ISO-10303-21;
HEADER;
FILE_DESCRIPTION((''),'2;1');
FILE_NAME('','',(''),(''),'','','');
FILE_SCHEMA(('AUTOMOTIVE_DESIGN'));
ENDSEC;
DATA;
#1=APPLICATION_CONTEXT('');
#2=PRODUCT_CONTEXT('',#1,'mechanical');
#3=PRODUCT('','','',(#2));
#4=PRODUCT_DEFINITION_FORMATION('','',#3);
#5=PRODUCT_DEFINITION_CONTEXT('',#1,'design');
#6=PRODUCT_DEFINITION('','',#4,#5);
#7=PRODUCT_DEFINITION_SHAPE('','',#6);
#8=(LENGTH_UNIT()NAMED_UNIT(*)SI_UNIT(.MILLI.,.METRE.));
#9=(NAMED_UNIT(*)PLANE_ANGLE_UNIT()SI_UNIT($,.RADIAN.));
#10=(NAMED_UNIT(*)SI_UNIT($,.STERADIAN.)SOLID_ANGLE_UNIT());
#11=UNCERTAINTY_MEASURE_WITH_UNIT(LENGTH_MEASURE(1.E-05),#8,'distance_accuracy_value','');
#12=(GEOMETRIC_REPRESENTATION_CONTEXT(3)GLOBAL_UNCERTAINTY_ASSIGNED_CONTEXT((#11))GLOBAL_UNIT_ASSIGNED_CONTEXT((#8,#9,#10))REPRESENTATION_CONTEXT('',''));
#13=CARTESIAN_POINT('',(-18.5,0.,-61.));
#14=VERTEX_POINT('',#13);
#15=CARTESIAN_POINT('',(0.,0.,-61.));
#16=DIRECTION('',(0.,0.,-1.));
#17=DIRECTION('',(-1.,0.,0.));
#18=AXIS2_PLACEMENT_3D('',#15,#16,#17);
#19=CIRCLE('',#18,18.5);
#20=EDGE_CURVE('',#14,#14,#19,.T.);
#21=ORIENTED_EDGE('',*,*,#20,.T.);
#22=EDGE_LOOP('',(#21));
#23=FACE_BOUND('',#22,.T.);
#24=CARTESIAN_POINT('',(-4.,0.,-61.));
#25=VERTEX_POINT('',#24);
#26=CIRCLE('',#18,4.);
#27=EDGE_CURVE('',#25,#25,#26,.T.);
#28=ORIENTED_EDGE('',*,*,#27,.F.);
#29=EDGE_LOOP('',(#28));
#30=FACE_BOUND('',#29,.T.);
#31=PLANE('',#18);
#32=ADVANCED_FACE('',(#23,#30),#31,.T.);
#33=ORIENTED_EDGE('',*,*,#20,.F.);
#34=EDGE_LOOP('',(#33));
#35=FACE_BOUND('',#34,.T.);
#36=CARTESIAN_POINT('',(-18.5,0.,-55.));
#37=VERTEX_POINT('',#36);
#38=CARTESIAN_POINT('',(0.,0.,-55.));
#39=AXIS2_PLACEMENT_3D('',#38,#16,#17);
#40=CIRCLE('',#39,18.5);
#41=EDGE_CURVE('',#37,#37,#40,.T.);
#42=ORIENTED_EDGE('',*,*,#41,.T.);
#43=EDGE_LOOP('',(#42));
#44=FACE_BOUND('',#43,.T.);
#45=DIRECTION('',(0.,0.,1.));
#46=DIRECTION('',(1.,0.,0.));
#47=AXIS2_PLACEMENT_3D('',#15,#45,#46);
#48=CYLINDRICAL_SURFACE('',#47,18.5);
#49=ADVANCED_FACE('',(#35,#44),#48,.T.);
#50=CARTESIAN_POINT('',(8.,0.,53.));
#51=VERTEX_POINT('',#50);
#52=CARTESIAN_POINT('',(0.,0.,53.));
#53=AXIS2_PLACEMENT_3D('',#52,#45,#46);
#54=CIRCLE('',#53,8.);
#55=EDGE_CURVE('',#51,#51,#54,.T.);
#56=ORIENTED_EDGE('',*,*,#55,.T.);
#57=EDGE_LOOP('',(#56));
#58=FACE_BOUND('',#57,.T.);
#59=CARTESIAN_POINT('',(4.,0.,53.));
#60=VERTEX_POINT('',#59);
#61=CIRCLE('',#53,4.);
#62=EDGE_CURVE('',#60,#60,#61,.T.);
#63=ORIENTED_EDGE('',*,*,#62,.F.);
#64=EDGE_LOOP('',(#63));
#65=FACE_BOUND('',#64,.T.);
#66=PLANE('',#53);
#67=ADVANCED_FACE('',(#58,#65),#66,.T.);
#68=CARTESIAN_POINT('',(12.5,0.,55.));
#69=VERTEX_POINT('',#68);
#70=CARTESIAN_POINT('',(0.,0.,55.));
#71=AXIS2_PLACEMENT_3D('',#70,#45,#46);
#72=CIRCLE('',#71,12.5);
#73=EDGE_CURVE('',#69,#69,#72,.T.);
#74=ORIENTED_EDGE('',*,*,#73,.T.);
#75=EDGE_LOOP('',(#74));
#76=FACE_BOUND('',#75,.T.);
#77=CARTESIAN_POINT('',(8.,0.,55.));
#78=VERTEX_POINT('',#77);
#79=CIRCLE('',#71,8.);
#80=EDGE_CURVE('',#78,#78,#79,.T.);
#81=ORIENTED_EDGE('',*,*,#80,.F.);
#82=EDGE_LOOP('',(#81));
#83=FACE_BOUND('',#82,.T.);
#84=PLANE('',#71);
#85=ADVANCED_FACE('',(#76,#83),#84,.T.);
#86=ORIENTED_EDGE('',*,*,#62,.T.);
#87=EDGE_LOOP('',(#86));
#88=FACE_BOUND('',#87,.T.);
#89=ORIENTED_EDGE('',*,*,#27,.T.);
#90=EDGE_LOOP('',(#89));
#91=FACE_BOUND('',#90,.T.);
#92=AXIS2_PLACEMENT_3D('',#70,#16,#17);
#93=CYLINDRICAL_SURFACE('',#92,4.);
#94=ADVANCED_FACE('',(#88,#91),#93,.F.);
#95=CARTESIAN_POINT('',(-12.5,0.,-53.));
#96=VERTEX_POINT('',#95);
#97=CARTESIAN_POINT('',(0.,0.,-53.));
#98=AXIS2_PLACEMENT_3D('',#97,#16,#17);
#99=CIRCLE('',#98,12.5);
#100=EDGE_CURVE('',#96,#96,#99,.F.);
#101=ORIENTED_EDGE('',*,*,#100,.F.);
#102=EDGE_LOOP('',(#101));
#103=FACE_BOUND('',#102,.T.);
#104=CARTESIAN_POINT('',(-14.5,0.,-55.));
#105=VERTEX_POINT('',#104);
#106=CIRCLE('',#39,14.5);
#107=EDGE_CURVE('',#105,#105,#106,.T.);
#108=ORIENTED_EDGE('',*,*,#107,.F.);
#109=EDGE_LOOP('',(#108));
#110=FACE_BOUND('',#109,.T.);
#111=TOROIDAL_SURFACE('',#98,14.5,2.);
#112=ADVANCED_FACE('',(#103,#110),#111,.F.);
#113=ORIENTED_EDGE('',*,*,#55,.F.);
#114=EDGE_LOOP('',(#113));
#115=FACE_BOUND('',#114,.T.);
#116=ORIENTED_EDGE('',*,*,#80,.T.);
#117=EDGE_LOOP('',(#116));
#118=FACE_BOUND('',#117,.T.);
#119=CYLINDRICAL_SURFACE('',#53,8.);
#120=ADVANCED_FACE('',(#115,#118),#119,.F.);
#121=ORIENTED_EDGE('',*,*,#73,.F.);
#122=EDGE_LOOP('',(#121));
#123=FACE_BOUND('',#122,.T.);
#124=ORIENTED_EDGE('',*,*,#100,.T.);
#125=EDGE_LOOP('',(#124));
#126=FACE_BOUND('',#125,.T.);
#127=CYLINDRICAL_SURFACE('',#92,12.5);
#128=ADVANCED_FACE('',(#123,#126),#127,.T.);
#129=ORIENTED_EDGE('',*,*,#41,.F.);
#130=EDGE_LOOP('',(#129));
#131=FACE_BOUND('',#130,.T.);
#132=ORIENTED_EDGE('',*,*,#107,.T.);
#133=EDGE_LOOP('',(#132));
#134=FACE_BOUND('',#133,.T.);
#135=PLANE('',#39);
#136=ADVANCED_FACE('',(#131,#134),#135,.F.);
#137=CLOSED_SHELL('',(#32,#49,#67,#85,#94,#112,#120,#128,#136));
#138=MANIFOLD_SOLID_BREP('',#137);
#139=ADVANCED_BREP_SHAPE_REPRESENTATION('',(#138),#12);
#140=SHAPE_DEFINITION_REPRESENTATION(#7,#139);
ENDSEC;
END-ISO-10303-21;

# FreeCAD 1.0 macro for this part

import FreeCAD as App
import Part
import Sketcher


def edges_at(feature, points):
    """Names of the edges that pass closest to the given points."""
    edges = feature.Shape.Edges
    near = lambda p: min(range(len(edges)), key=lambda i: edges[i].distToShape(Part.Vertex(*p))[0])
    return sorted({f"Edge{near(p) + 1}" for p in points})

doc = App.newDocument("Part")
body = doc.addObject("PartDesign::Body", "Body")

# Sketch on XY plane
sketch1 = body.newObject("Sketcher::SketchObject", "Sketch")
sketch1.AttachmentSupport = (doc.getObject("XY_Plane"), [""])
sketch1.MapMode = "FlatFace"
sketch1.addGeometry([
    Part.Circle(App.Vector(0, 0, 0), App.Vector(0, 0, 1), 12.5),
    Part.Circle(App.Vector(0, 0, 0), App.Vector(0, 0, 1), 4),
], False)
sketch1.addConstraint([
    Sketcher.Constraint("Coincident", 0, 3, -1, 1),
    Sketcher.Constraint("Coincident", 1, 3, -1, 1),
    Sketcher.Constraint("Diameter", 0, 25.0),
    Sketcher.Constraint("Diameter", 1, 8.0),
])
pad1 = body.newObject("PartDesign::Pad", "Pad")
pad1.Profile = sketch1
pad1.Length = 110
pad1.Midplane = True

# Sketch on XY plane
sketch2 = body.newObject("Sketcher::SketchObject", "Sketch001")
sketch2.AttachmentSupport = (doc.getObject("XY_Plane"), [""])
sketch2.MapMode = "FlatFace"
sketch2.AttachmentOffset = App.Placement(App.Vector(0, 0, 55), App.Rotation())
sketch2.addGeometry(Part.Circle(App.Vector(0, 0, 0), App.Vector(0, 0, 1), 8), False)
sketch2.addConstraint([
    Sketcher.Constraint("Coincident", 0, 3, -1, 1),
    Sketcher.Constraint("Diameter", 0, 16.0),
])
pocket1 = body.newObject("PartDesign::Pocket", "Pocket")
pocket1.Profile = sketch2
pocket1.Length = 2

# Sketch on XY plane
sketch3 = body.newObject("Sketcher::SketchObject", "Sketch002")
sketch3.AttachmentSupport = (doc.getObject("XY_Plane"), [""])
sketch3.MapMode = "FlatFace"
sketch3.AttachmentOffset = App.Placement(App.Vector(0, 0, -61), App.Rotation())
sketch3.addGeometry([
    Part.Circle(App.Vector(0, 0, 0), App.Vector(0, 0, 1), 18.5),
    Part.Circle(App.Vector(0, 0, 0), App.Vector(0, 0, 1), 4),
], False)
sketch3.addConstraint([
    Sketcher.Constraint("Coincident", 0, 3, -1, 1),
    Sketcher.Constraint("Coincident", 1, 3, -1, 1),
    Sketcher.Constraint("Diameter", 0, 37.0),
    Sketcher.Constraint("Diameter", 1, 8.0),
])
pad2 = body.newObject("PartDesign::Pad", "Pad001")
pad2.Profile = sketch3
pad2.Length = 6
doc.recompute()

fillet = body.newObject("PartDesign::Fillet", "Fillet")
fillet.Base = (pad2, edges_at(pad2, [(-12.5, 0, -55)]))
fillet.Radius = 2

doc.recompute()
